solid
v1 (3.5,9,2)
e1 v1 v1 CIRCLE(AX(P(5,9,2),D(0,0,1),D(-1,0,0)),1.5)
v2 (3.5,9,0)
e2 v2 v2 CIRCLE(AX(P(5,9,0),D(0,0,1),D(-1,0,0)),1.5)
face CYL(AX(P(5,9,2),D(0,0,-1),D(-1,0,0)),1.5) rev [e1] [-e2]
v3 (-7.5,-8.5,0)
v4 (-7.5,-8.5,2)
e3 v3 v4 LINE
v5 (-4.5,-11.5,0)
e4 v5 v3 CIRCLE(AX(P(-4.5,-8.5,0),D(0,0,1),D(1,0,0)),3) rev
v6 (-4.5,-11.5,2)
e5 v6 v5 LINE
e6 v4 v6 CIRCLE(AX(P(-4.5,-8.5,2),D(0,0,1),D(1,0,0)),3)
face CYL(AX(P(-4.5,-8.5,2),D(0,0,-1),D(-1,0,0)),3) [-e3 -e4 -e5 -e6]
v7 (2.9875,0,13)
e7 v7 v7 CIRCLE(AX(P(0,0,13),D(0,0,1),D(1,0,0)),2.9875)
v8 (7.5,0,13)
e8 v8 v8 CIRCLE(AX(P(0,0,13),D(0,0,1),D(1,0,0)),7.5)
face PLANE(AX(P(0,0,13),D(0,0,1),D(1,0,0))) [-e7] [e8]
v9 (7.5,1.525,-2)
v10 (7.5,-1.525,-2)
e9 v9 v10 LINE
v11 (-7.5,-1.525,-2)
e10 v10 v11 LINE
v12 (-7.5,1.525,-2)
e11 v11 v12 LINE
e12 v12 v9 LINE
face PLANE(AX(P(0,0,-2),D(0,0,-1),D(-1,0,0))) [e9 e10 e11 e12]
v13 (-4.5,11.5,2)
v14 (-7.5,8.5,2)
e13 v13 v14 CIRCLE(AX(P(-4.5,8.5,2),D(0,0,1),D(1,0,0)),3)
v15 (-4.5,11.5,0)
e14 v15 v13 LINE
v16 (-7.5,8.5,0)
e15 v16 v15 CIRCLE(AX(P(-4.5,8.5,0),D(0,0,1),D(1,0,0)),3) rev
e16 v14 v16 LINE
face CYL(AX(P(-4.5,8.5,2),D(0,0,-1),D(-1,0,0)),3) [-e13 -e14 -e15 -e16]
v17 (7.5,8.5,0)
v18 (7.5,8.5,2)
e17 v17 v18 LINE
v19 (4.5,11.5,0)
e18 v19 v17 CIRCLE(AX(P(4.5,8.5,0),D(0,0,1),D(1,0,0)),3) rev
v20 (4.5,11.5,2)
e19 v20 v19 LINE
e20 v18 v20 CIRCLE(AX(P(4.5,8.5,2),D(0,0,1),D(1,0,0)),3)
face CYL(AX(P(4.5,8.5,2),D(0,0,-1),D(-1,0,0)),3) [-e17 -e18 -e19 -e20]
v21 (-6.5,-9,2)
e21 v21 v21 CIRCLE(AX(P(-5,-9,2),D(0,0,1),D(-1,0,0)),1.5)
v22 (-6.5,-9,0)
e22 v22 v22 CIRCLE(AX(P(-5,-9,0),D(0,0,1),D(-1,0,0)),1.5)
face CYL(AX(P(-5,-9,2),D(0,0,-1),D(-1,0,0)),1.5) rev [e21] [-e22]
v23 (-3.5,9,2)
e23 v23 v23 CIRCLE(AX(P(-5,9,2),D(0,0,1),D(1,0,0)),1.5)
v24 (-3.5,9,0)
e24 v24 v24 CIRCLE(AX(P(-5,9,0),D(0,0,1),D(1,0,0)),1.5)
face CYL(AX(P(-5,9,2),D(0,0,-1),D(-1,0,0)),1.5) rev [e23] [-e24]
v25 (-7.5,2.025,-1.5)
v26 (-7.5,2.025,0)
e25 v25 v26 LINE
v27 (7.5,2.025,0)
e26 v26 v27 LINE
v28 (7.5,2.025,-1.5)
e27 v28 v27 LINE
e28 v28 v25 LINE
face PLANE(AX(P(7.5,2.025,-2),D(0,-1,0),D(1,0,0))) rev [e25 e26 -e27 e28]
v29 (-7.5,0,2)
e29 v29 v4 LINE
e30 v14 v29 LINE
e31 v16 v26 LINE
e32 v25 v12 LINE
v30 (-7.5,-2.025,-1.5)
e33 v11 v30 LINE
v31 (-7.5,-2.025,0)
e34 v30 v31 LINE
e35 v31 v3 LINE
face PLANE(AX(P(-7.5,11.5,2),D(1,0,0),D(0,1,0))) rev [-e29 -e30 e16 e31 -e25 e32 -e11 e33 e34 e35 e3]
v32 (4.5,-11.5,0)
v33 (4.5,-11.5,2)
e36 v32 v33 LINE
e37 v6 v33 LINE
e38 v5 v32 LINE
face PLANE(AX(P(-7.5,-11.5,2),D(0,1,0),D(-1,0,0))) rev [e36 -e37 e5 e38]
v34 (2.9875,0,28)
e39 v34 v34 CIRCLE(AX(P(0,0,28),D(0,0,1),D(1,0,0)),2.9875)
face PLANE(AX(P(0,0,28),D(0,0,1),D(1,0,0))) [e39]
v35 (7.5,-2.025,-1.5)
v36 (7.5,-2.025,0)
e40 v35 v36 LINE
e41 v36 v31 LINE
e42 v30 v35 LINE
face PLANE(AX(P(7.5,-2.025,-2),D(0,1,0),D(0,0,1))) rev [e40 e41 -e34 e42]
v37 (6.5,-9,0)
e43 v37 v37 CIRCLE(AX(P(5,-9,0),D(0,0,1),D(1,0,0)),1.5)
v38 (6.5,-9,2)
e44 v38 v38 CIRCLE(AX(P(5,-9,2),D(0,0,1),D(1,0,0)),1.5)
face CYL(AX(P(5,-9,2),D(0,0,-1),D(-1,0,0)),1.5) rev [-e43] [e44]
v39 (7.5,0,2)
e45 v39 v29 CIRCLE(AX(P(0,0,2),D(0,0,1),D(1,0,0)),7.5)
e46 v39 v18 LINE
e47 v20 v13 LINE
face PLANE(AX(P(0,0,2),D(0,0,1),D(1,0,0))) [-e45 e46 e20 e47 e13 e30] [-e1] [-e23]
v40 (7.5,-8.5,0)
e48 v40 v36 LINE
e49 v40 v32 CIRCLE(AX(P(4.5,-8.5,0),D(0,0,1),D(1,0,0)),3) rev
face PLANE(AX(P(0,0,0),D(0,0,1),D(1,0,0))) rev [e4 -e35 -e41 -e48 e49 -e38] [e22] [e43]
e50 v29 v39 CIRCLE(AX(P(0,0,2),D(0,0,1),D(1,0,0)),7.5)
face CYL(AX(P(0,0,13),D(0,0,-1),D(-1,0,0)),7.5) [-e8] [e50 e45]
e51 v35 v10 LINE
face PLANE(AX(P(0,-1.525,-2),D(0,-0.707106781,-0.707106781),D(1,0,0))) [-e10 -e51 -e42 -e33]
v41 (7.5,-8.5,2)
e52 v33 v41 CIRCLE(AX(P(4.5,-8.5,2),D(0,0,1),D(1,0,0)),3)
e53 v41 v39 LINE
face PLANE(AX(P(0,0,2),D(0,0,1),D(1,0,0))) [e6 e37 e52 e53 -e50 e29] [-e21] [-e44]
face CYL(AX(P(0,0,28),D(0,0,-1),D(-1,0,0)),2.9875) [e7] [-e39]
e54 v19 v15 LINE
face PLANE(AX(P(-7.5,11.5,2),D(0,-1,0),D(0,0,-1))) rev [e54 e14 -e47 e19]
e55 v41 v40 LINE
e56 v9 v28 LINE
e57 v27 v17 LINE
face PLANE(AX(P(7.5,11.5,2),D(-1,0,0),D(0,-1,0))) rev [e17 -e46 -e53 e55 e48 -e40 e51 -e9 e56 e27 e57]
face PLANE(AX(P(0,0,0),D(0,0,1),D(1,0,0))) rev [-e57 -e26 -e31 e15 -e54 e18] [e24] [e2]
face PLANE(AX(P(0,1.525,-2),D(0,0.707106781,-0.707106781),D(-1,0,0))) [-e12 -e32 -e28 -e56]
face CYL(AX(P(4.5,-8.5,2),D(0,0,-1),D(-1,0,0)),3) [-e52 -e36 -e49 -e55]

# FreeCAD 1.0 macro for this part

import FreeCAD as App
import Part
import Sketcher
from FreeCAD import Vector


def edges_at(feature, points):
    """Names of the edges that pass closest to the given points."""
    edges = feature.Shape.Edges
    near = lambda p: min(range(len(edges)), key=lambda i: edges[i].distToShape(Part.Vertex(*p))[0])
    return sorted({f"Edge{near(p) + 1}" for p in points})


def add_polygon(sketch, points):
    """Adds a closed chain of lines whose ends are joined by coincident constraints."""
    first, n = sketch.GeometryCount, len(points)
    for a, b in zip(points, points[1:] + points[:1]):
        sketch.addGeometry(Part.LineSegment(App.Vector(*a, 0), App.Vector(*b, 0)), False)
    for i in range(n):
        sketch.addConstraint(Sketcher.Constraint("Coincident", first + i, 2, first + (i + 1) % n, 1))

doc = App.newDocument("Part")
params = doc.addObject("Spreadsheet::Sheet", "Params")
for row, (alias, value) in enumerate([
    ("sketch1_diameter", "3 mm"),
    ("sketch1_width", "15 mm"),
    ("sketch1_height", "23 mm"),
    ("pad1_length", "2 mm"),
    ("sketch2_diameter", "15 mm"),
    ("pad2_length", "11 mm"),
    ("pad3_length", "15 mm"),
    ("sketch4_width", "15 mm"),
    ("sketch4_height", "4.05 mm"),
    ("pad4_length", "2 mm"),
    ("chamfer_size", "0.5 mm"),
    ("fillet_radius", "3 mm"),
], start=1):
    params.set(f"A{row}", alias)
    params.set(f"B{row}", "=" + value)
    params.setAlias(f"B{row}", alias)

body = doc.addObject("PartDesign::Body", "Body")

# Sketch on XY plane
sketch1 = body.newObject("Sketcher::SketchObject", "Sketch")
sketch1.AttachmentSupport = (doc.getObject("XY_Plane"), [""])
sketch1.MapMode = "FlatFace"
add_polygon(sketch1, [(-7.5, 11.5), (-7.5, -11.5), (7.5, -11.5), (7.5, 11.5)])  # lines 0-3
sketch1.addGeometry(Part.Circle(Vector(-5, -9, 0), Vector(0, 0, 1), 1.5), False)  # 4
sketch1.addGeometry(Part.Circle(Vector(5, -9, 0), Vector(0, 0, 1), 1.5), False)  # 5
sketch1.addGeometry(Part.Circle(Vector(-5, 9, 0), Vector(0, 0, 1), 1.5), False)  # 6
sketch1.addGeometry(Part.Circle(Vector(5, 9, 0), Vector(0, 0, 1), 1.5), False)  # 7
sketch1.addConstraint([
    Sketcher.Constraint("Vertical", 0),
    Sketcher.Constraint("Horizontal", 1),
    Sketcher.Constraint("Vertical", 2),
    Sketcher.Constraint("Horizontal", 3),
    Sketcher.Constraint("Equal", 4, 5),
    Sketcher.Constraint("Equal", 5, 6),
    Sketcher.Constraint("Equal", 6, 7),
    Sketcher.Constraint("Symmetric", 5, 3, 6, 3, -1, 1),
    Sketcher.Constraint("Symmetric", 4, 3, 7, 3, -1, 1),
    Sketcher.Constraint("Symmetric", 0, 2, 2, 2, -1, 1),
    Sketcher.Constraint("Symmetric", 4, 3, 5, 3, -2),
    Sketcher.Constraint("Diameter", 4, 3.0),
    Sketcher.Constraint("DistanceX", 1, 1, 1, 2, 15.0),
    Sketcher.Constraint("DistanceY", 0, 2, 0, 1, 23.0),
    Sketcher.Constraint("DistanceX", 4, 3, -1, 1, 5.0),
    Sketcher.Constraint("DistanceY", 4, 3, -1, 1, 9.0),
])
sketch1.setExpression("Constraints[15]", "Params.sketch1_diameter")
sketch1.setExpression("Constraints[16]", "Params.sketch1_width")
sketch1.setExpression("Constraints[17]", "Params.sketch1_height")
pad1 = body.newObject("PartDesign::Pad", "Pad")
pad1.Profile = sketch1
pad1.setExpression("Length", "Params.pad1_length")

# Sketch on XY plane
sketch2 = body.newObject("Sketcher::SketchObject", "Sketch001")
sketch2.AttachmentSupport = (doc.getObject("XY_Plane"), [""])
sketch2.MapMode = "FlatFace"
sketch2.AttachmentOffset = App.Placement(Vector(0, 0, 2), App.Rotation())
sketch2.addGeometry(Part.Circle(Vector(0, 0, 0), Vector(0, 0, 1), 8), False)
sketch2.addConstraint([
    Sketcher.Constraint("Coincident", 0, 3, -1, 1),
    Sketcher.Constraint("Diameter", 0, 15.0),
])
sketch2.setExpression("Constraints[1]", "Params.sketch2_diameter")
pad2 = body.newObject("PartDesign::Pad", "Pad001")
pad2.Profile = sketch2
pad2.setExpression("Length", "Params.pad2_length")

# Sketch on XY plane
sketch3 = body.newObject("Sketcher::SketchObject", "Sketch002")
sketch3.AttachmentSupport = (doc.getObject("XY_Plane"), [""])
sketch3.MapMode = "FlatFace"
sketch3.AttachmentOffset = App.Placement(Vector(0, 0, 13), App.Rotation())
sketch3.addGeometry(Part.Circle(Vector(0, 0, 0), Vector(0, 0, 1), 3), False)
sketch3.addConstraint([
    Sketcher.Constraint("Coincident", 0, 3, -1, 1),
    Sketcher.Constraint("Diameter", 0, 5.975),
])
pad3 = body.newObject("PartDesign::Pad", "Pad002")
pad3.Profile = sketch3
pad3.setExpression("Length", "Params.pad3_length")

# Sketch on XY plane
sketch4 = body.newObject("Sketcher::SketchObject", "Sketch003")
sketch4.AttachmentSupport = (doc.getObject("XY_Plane"), [""])
sketch4.MapMode = "FlatFace"
add_polygon(sketch4, [(7.5, 2), (7.5, -2), (-7.5, -2), (-7.5, 2)])  # lines 0-3
sketch4.addConstraint([
    Sketcher.Constraint("Vertical", 0),
    Sketcher.Constraint("Horizontal", 1),
    Sketcher.Constraint("Vertical", 2),
    Sketcher.Constraint("Horizontal", 3),
    Sketcher.Constraint("Symmetric", 0, 2, 2, 2, -1, 1),
    Sketcher.Constraint("DistanceX", 1, 2, 1, 1, 15.0),
    Sketcher.Constraint("DistanceY", 0, 2, 0, 1, 4.05),
])
sketch4.setExpression("Constraints[9]", "Params.sketch4_width")
sketch4.setExpression("Constraints[10]", "Params.sketch4_height")
pad4 = body.newObject("PartDesign::Pad", "Pad003")
pad4.Profile = sketch4
pad4.setExpression("Length", "Params.pad4_length")
pad4.Reversed = True
doc.recompute()

chamfer = body.newObject("PartDesign::Chamfer", "Chamfer")
chamfer.Base = (pad4, edges_at(pad4, [(0, -2.025, -2), (0, 2.025, -2)]))
chamfer.setExpression("Size", "Params.chamfer_size")
doc.recompute()

fillet = body.newObject("PartDesign::Fillet", "Fillet")
fillet.Base = (chamfer, edges_at(chamfer, [
    (-7.5, 11.5, 1),
    (7.5, 11.5, 1),
    (7.5, -11.5, 1),
    (-7.5, -11.5, 1),
]))
fillet.setExpression("Radius", "Params.fillet_radius")

doc.recompute()
